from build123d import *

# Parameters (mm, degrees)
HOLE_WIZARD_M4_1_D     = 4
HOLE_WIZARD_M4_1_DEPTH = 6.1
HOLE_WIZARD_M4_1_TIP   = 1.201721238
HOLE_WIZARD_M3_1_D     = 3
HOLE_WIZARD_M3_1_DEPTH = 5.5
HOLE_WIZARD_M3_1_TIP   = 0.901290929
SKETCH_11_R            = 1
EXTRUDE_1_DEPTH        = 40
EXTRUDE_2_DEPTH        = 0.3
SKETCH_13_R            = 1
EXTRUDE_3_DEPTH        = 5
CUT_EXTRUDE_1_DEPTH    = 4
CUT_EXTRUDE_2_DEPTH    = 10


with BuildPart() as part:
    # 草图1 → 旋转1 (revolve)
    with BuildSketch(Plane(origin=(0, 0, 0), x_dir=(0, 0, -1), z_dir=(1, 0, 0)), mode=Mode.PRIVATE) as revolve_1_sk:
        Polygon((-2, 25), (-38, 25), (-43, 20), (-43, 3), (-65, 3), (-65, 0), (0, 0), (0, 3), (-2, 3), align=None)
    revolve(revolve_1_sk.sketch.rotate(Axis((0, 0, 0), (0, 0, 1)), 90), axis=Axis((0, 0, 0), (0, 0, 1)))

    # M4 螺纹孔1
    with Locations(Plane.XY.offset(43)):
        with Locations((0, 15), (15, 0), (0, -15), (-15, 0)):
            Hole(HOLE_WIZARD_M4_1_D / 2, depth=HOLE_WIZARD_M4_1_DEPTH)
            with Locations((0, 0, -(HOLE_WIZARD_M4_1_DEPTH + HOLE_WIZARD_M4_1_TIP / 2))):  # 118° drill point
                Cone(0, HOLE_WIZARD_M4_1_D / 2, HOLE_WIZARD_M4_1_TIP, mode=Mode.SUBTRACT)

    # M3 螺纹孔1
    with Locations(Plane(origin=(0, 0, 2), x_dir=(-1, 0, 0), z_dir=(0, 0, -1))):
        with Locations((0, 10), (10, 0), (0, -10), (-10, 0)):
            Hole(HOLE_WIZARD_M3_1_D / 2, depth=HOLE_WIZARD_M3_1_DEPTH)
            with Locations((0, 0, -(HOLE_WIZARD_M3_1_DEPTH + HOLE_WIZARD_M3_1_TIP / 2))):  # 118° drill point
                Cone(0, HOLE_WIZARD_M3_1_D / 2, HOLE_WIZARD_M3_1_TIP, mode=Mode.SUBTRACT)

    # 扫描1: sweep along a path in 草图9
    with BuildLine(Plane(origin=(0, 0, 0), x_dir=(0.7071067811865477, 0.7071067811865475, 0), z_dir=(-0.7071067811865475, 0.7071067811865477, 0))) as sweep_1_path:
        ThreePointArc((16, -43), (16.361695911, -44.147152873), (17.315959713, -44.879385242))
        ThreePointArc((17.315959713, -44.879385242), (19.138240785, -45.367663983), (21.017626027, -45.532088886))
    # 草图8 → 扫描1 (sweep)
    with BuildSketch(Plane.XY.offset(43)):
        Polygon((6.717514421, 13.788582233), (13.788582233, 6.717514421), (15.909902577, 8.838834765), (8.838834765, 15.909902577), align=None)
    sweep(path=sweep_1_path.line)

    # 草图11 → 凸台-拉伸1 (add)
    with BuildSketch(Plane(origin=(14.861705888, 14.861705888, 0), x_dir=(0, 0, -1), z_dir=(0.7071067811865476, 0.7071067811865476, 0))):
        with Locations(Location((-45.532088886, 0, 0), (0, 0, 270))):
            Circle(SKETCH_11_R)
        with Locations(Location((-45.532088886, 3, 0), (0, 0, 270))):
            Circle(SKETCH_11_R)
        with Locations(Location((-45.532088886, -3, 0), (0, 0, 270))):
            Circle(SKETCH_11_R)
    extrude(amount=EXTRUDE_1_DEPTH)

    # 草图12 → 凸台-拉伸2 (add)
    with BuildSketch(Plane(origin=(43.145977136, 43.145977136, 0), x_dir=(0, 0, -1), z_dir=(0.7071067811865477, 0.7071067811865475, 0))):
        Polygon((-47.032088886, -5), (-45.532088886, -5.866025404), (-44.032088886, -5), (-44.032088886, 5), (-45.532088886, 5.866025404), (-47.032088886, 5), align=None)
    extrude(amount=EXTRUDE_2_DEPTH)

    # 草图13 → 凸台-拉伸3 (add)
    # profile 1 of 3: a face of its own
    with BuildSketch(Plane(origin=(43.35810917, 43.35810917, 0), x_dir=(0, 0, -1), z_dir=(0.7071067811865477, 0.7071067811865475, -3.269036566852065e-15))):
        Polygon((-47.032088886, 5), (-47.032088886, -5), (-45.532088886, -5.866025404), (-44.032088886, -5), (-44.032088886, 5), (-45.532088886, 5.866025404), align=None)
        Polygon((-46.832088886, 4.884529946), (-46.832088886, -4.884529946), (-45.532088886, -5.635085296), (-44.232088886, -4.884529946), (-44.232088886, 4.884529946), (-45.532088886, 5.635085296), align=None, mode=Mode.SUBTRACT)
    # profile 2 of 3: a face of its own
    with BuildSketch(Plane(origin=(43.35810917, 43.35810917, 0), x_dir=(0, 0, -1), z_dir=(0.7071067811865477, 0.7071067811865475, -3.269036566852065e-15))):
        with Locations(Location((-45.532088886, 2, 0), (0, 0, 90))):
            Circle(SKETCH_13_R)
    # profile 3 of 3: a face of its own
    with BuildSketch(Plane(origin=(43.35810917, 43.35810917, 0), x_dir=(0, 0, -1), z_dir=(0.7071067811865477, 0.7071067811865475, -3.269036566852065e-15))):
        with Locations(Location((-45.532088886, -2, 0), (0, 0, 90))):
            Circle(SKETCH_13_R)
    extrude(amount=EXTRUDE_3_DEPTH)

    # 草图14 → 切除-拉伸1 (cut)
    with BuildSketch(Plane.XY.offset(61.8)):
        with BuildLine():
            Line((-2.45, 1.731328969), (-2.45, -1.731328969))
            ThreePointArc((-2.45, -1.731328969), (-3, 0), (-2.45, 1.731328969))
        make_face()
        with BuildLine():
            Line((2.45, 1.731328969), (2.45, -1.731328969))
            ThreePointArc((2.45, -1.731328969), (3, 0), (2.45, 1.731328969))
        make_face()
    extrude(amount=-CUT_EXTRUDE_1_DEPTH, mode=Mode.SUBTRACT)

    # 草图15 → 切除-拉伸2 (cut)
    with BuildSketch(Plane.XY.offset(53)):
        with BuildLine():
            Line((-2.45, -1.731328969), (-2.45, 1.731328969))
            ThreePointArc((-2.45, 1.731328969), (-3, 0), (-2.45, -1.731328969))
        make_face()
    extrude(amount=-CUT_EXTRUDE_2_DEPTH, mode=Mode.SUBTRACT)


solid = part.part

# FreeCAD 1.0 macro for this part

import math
import FreeCAD as App
import Part
import Sketcher

V = App.Vector
Q = App.Units.Quantity


def add_polygon(sketch, points):
    """Adds a closed chain of lines whose ends are joined by coincident constraints."""
    first, n = sketch.GeometryCount, len(points)
    for a, b in zip(points, points[1:] + points[:1]):
        sketch.addGeometry(Part.LineSegment(App.Vector(*a, 0), App.Vector(*b, 0)), False)
    for i in range(n):
        sketch.addConstraint(Sketcher.Constraint("Coincident", first + i, 2, first + (i + 1) % n, 1))

doc = App.newDocument("Part")
params = doc.addObject("Spreadsheet::Sheet", "Params")
for row, (alias, value) in enumerate([
    ("sketch1_width", "17 mm"),
    ("sketch1_width2", "3 mm"),
    ("sketch1_width3", "22 mm"),
    ("sketch1_height", "36 mm"),
    ("sketch1_height2", "65 mm"),
    ("revolution_angle", "360 deg"),
    ("sketch2_diameter", "4 mm"),
    ("hole_diameter", "4 mm"),
    ("hole_depth", "6.1 mm"),
    ("sketch3_diameter", "3 mm"),
    ("hole2_diameter", "3 mm"),
    ("hole2_depth", "5.5 mm"),
    ("sketch4_length", "10 mm"),
    ("sketch4_length2", "3 mm"),
    ("sketch5_radius", "2 mm"),
    ("sketch6_diameter", "2 mm"),
    ("pad1_length", "40 mm"),
    ("sketch7_height", "10 mm"),
    ("pad2_length", "0.3 mm"),
    ("sketch8_diameter", "2 mm"),
    ("sketch8_height", "10 mm"),
    ("pad3_length", "5 mm"),
    ("sketch9_radius", "3 mm"),
    ("pocket1_length", "4 mm"),
    ("sketch10_radius", "3 mm"),
    ("pocket2_length", "10 mm"),
], start=1):
    params.set(f"A{row}", alias)
    params.set(f"B{row}", "=" + value)
    params.setAlias(f"B{row}", alias)

body = doc.addObject("PartDesign::Body", "Body")

sketch1 = body.newObject("Sketcher::SketchObject", "Sketch")
sketch1.AttachmentSupport = (doc.getObject("YZ_Plane"), [""])
sketch1.MapMode = "FlatFace"
add_polygon(sketch1, [(25, 2), (25, 38), (20, 43), (3, 43), (3, 65), (0, 65), (0, 0), (3, 0), (3, 2)])
sketch1.addConstraint(Sketcher.Constraint("Vertical", 0))
sketch1.addConstraint(Sketcher.Constraint("Horizontal", 2))
sketch1.addConstraint(Sketcher.Constraint("Vertical", 3))
sketch1.addConstraint(Sketcher.Constraint("Horizontal", 4))
sketch1.addConstraint(Sketcher.Constraint("Vertical", 5))
sketch1.addConstraint(Sketcher.Constraint("Horizontal", 6))
sketch1.addConstraint(Sketcher.Constraint("Vertical", 7))
sketch1.addConstraint(Sketcher.Constraint("Horizontal", 8))
sketch1.addConstraint(Sketcher.Constraint("Coincident", 5, 2, -1, 1))
sketch1.addConstraint(Sketcher.Constraint("Vertical", 3, 2, 6, 2))
sketch1.addConstraint(Sketcher.Constraint("Equal", 8, 3))
sketch1.addConstraint(Sketcher.Constraint("DistanceX", 2, 2, 2, 1, 17.0))
sketch1.addConstraint(Sketcher.Constraint("DistanceX", 4, 2, 4, 1, 3.0))
sketch1.addConstraint(Sketcher.Constraint("DistanceX", 8, 1, 8, 2, 22.0))
sketch1.addConstraint(Sketcher.Constraint("DistanceY", 0, 1, 0, 2, 36.0))
sketch1.addConstraint(Sketcher.Constraint("DistanceY", 5, 2, 5, 1, 65.0))
sketch1.addConstraint(Sketcher.Constraint("DistanceY", 7, 1, 7, 2, 2.0))
sketch1.setExpression("Constraints[20]", "Params.sketch1_width")
sketch1.setExpression("Constraints[21]", "Params.sketch1_width2")
sketch1.setExpression("Constraints[22]", "Params.sketch1_width3")
sketch1.setExpression("Constraints[23]", "Params.sketch1_height")
sketch1.setExpression("Constraints[24]", "Params.sketch1_height2")
revolution = body.newObject("PartDesign::Revolution", "Revolution")
revolution.Profile = sketch1
revolution.ReferenceAxis = (sketch1, ["V_Axis"])
revolution.setExpression("Angle", "Params.revolution_angle")

sketch2 = body.newObject("Sketcher::SketchObject", "Sketch001")
sketch2.AttachmentSupport = (doc.getObject("XY_Plane"), [""])
sketch2.MapMode = "FlatFace"
sketch2.AttachmentOffset = App.Placement(V(0, 0, 43), App.Rotation())
sketch2.addGeometry(Part.Circle(V(0, 15, 0), V(0, 0, 1), 2), False)
sketch2.addGeometry(Part.Circle(V(15, 0, 0), V(0, 0, 1), 2), False)
sketch2.addGeometry(Part.Circle(V(0, -15, 0), V(0, 0, 1), 2), False)
sketch2.addGeometry(Part.Circle(V(-15, 0, 0), V(0, 0, 1), 2), False)
sketch2.addConstraint(Sketcher.Constraint("Equal", 0, 1))
sketch2.addConstraint(Sketcher.Constraint("Equal", 1, 2))
sketch2.addConstraint(Sketcher.Constraint("Equal", 2, 3))
sketch2.addConstraint(Sketcher.Constraint("Symmetric", 0, 3, 2, 3, -1, 1))
sketch2.addConstraint(Sketcher.Constraint("Symmetric", 1, 3, 3, 3, -1, 1))
sketch2.addConstraint(Sketcher.Constraint("PointOnObject", 0, 3, -2))
sketch2.addConstraint(Sketcher.Constraint("PointOnObject", 1, 3, -1))
sketch2.addConstraint(Sketcher.Constraint("Diameter", 0, 4.0))
sketch2.addConstraint(Sketcher.Constraint("DistanceY", -1, 1, 0, 3, 15.0))
sketch2.addConstraint(Sketcher.Constraint("DistanceX", -1, 1, 1, 3, 15.0))
sketch2.setExpression("Constraints[7]", "Params.sketch2_diameter")
doc.recompute()
hole = body.newObject("PartDesign::Hole", "Hole")
hole.Profile = sketch2
hole.ThreadType = "None"
hole.setExpression("Diameter", "Params.hole_diameter")
hole.DepthType = "Dimension"
hole.setExpression("Depth", "Params.hole_depth")
hole.DrillPoint = "Angled"
hole.DrillPointAngle = 118

sketch3 = body.newObject("Sketcher::SketchObject", "Sketch002")
sketch3.AttachmentSupport = (doc.getObject("XY_Plane"), [""])
sketch3.MapMode = "FlatFace"
sketch3.AttachmentOffset = App.Placement(V(0, 0, 2), App.Rotation())
sketch3.addGeometry(Part.Circle(V(0, 10, 0), V(0, 0, 1), 1.5), False)
sketch3.addGeometry(Part.Circle(V(-10, 0, 0), V(0, 0, 1), 1.5), False)
sketch3.addGeometry(Part.Circle(V(0, -10, 0), V(0, 0, 1), 1.5), False)
sketch3.addGeometry(Part.Circle(V(10, 0, 0), V(0, 0, 1), 1.5), False)
sketch3.addConstraint(Sketcher.Constraint("Equal", 0, 1))
sketch3.addConstraint(Sketcher.Constraint("Equal", 1, 2))
sketch3.addConstraint(Sketcher.Constraint("Equal", 2, 3))
sketch3.addConstraint(Sketcher.Constraint("Symmetric", 0, 3, 2, 3, -1, 1))
sketch3.addConstraint(Sketcher.Constraint("Symmetric", 1, 3, 3, 3, -1, 1))
sketch3.addConstraint(Sketcher.Constraint("PointOnObject", 0, 3, -2))
sketch3.addConstraint(Sketcher.Constraint("PointOnObject", 1, 3, -1))
sketch3.addConstraint(Sketcher.Constraint("Diameter", 0, 3.0))
sketch3.addConstraint(Sketcher.Constraint("DistanceY", -1, 1, 0, 3, 10.0))
sketch3.addConstraint(Sketcher.Constraint("DistanceX", 1, 3, -1, 1, 10.0))
sketch3.setExpression("Constraints[7]", "Params.sketch3_diameter")
doc.recompute()
hole2 = body.newObject("PartDesign::Hole", "Hole001")
hole2.Profile = sketch3
hole2.ThreadType = "None"
hole2.setExpression("Diameter", "Params.hole2_diameter")
hole2.DepthType = "Dimension"
hole2.setExpression("Depth", "Params.hole2_depth")
hole2.DrillPoint = "Angled"
hole2.DrillPointAngle = 118
hole2.Reversed = True

sketch4 = body.newObject("Sketcher::SketchObject", "Sketch003")
sketch4.AttachmentSupport = (doc.getObject("XY_Plane"), [""])
sketch4.MapMode = "FlatFace"
sketch4.AttachmentOffset = App.Placement(V(0, 0, 43), App.Rotation())
add_polygon(sketch4, [(6.7, 13.8), (13.8, 6.7), (15.9, 8.8), (8.8, 15.9)])
sketch4.addConstraint(Sketcher.Constraint("Perpendicular", 0, 1))
sketch4.addConstraint(Sketcher.Constraint("Perpendicular", 1, 2))
sketch4.addConstraint(Sketcher.Constraint("Perpendicular", 2, 3))
sketch4.addConstraint(Sketcher.Constraint("Angle", 0, Q("-45 deg")))
sketch4.addConstraint(Sketcher.Constraint("Distance", 0, 10.0))
sketch4.addConstraint(Sketcher.Constraint("Distance", 1, 3.0))
sketch4.addConstraint(Sketcher.Constraint("DistanceX", -1, 1, 0, 2, 13.788582))
sketch4.addConstraint(Sketcher.Constraint("DistanceY", -1, 1, 0, 2, 6.717514))
sketch4.setExpression("Constraints[8]", "Params.sketch4_length")
sketch4.setExpression("Constraints[9]", "Params.sketch4_length2")

sketch5 = body.newObject("Sketcher::SketchObject", "Sketch004")
sketch5.Placement = App.Placement(V(0, 0, 0), App.Rotation(V(-0.707106781, -0.707106781, 0), V(0, 0, 0.999999999), V(-0.707106781, 0.707106781, 0), "ZXY"))
sketch5.addGeometry(Part.ArcOfCircle(Part.Circle(V(-18, 43, 0), V(0, 0, 1), 2), math.radians(0), math.radians(70)), False)
sketch5.addGeometry(Part.ArcOfCircle(Part.Circle(V(-21, 34.7, 0), V(0, 0, 1), 10.8), math.radians(70), math.radians(90)), False)
sketch5.addConstraint(Sketcher.Constraint("Tangent", 0, 2, 1, 1))
sketch5.addConstraint(Sketcher.Constraint("Radius", 0, 2.0))
sketch5.addConstraint(Sketcher.Constraint("DistanceX", 0, 3, -1, 1, 18.0))
sketch5.addConstraint(Sketcher.Constraint("DistanceY", -1, 1, 0, 3, 43.0))
sketch5.addConstraint(Sketcher.Constraint("DistanceY", -1, 1, 0, 1, 43.0))
sketch5.addConstraint(Sketcher.Constraint("Radius", 1, 10.822948))
sketch5.addConstraint(Sketcher.Constraint("DistanceY", -1, 1, 1, 3, 34.709141))
sketch5.addConstraint(Sketcher.Constraint("DistanceX", 1, 2, -1, 1, 21.017626))
sketch5.setExpression("Constraints[1]", "Params.sketch5_radius")
doc.recompute()

additivepipe = body.newObject("PartDesign::AdditivePipe", "AdditivePipe")
additivepipe.Profile = sketch4
additivepipe.Spine = (sketch5, ["Edge1", "Edge2"])

sketch6 = body.newObject("Sketcher::SketchObject", "Sketch005")
sketch6.Placement = App.Placement(V(14.861706, 14.861706, 0), App.Rotation(V(0, 0, -1), V(-0.707106781, 0.707106781, 0), V(0.707106781, 0.707106781, 0), "ZXY"))
sketch6.addGeometry(Part.Circle(V(-45.5, 0, 0), V(0, 0, 1), 1), False)
sketch6.addGeometry(Part.Circle(V(-45.5, 3, 0), V(0, 0, 1), 1), False)
sketch6.addGeometry(Part.Circle(V(-45.5, -3, 0), V(0, 0, 1), 1), False)
sketch6.addConstraint(Sketcher.Constraint("Equal", 0, 1))
sketch6.addConstraint(Sketcher.Constraint("Equal", 1, 2))
sketch6.addConstraint(Sketcher.Constraint("Symmetric", 1, 3, 2, 3, -1))
sketch6.addConstraint(Sketcher.Constraint("PointOnObject", 0, 3, -1))
sketch6.addConstraint(Sketcher.Constraint("Vertical", 0, 3, 1, 3))
sketch6.addConstraint(Sketcher.Constraint("Diameter", 0, 2.0))
sketch6.addConstraint(Sketcher.Constraint("DistanceY", -1, 1, 1, 3, 3.0))
sketch6.addConstraint(Sketcher.Constraint("DistanceX", 0, 3, -1, 1, 45.532089))
sketch6.setExpression("Constraints[5]", "Params.sketch6_diameter")
pad1 = body.newObject("PartDesign::Pad", "Pad")
pad1.Profile = sketch6
pad1.setExpression("Length", "Params.pad1_length")

sketch7 = body.newObject("Sketcher::SketchObject", "Sketch006")
sketch7.Placement = App.Placement(V(43.145977, 43.145977, 0), App.Rotation(V(0, 0, -1), V(-0.707106781, 0.707106781, 0), V(0.707106781, 0.707106781, 0), "ZXY"))
add_polygon(sketch7, [(-47, -5), (-45.5, -5.9), (-44, -5), (-44, 5), (-45.5, 5.9), (-47, 5)])
sketch7.addConstraint(Sketcher.Constraint("Vertical", 2))
sketch7.addConstraint(Sketcher.Constraint("Vertical", 5))
sketch7.addConstraint(Sketcher.Constraint("Symmetric", 0, 2, 3, 2, -1))
sketch7.addConstraint(Sketcher.Constraint("Parallel", 0, 3))
sketch7.addConstraint(Sketcher.Constraint("Parallel", 1, 4))
sketch7.addConstraint(Sketcher.Constraint("Horizontal", 2, 2, 4, 2))
sketch7.addConstraint(Sketcher.Constraint("Horizontal", 1, 2, 5, 2))
sketch7.addConstraint(Sketcher.Constraint("DistanceY", 2, 1, 2, 2, 10.0))
sketch7.addConstraint(Sketcher.Constraint("Angle", 0, Q("-30 deg")))
sketch7.addConstraint(Sketcher.Constraint("DistanceX", 4, 2, 2, 2, 3.0))
sketch7.addConstraint(Sketcher.Constraint("DistanceX", 0, 2, -1, 1, 45.532089))
sketch7.setExpression("Constraints[13]", "Params.sketch7_height")
pad2 = body.newObject("PartDesign::Pad", "Pad001")
pad2.Profile = sketch7
pad2.setExpression("Length", "Params.pad2_length")

sketch8 = body.newObject("Sketcher::SketchObject", "Sketch007")
sketch8.Placement = App.Placement(V(43.358109, 43.358109, 0), App.Rotation(V(0, 0, -1), V(-0.707106781, 0.707106781, 0), V(0.707106781, 0.707106781, 0), "ZXY"))
add_polygon(sketch8, [(-47, 5), (-47, -5), (-45.5, -5.9), (-44, -5), (-44, 5), (-45.5, 5.9)])
add_polygon(sketch8, [(-46.8, -4.9), (-46.8, 4.9), (-45.5, 5.6), (-44.2, 4.9), (-44.2, -4.9), (-45.5, -5.6)])
sketch8.addGeometry(Part.Circle(V(-45.5, 2, 0), V(0, 0, 1), 1), False)
sketch8.addGeometry(Part.Circle(V(-45.5, -2, 0), V(0, 0, 1), 1), False)
sketch8.addConstraint(Sketcher.Constraint("Vertical", 0))
sketch8.addConstraint(Sketcher.Constraint("Vertical", 3))
sketch8.addConstraint(Sketcher.Constraint("Vertical", 6))
sketch8.addConstraint(Sketcher.Constraint("Vertical", 9))
sketch8.addConstraint(Sketcher.Constraint("Equal", 12, 13))
sketch8.addConstraint(Sketcher.Constraint("Symmetric", 12, 3, 13, 3, -1))
sketch8.addConstraint(Sketcher.Constraint("Symmetric", 1, 2, 4, 2, -1))
sketch8.addConstraint(Sketcher.Constraint("Symmetric", 7, 2, 10, 2, -1))
sketch8.addConstraint(Sketcher.Constraint("Parallel", 1, 4))
sketch8.addConstraint(Sketcher.Constraint("Parallel", 2, 5))
sketch8.addConstraint(Sketcher.Constraint("Parallel", 5, 7))
sketch8.addConstraint(Sketcher.Constraint("Parallel", 4, 8))
sketch8.addConstraint(Sketcher.Constraint("Parallel", 7, 10))
sketch8.addConstraint(Sketcher.Constraint("Parallel", 8, 11))
sketch8.addConstraint(Sketcher.Constraint("Horizontal", 0, 2, 2, 2))
sketch8.addConstraint(Sketcher.Constraint("Horizontal", 3, 2, 5, 2))
sketch8.addConstraint(Sketcher.Constraint("Horizontal", 6, 2, 8, 2))
sketch8.addConstraint(Sketcher.Constraint("Vertical", 13, 3, 1, 2))
sketch8.addConstraint(Sketcher.Constraint("Vertical", 4, 2, 7, 2))
sketch8.addConstraint(Sketcher.Constraint("Diameter", 12, 2.0))
sketch8.addConstraint(Sketcher.Constraint("DistanceY", 0, 2, 0, 1, 10.0))
sketch8.addConstraint(Sketcher.Constraint("Angle", 1, Q("-30 deg")))
sketch8.addConstraint(Sketcher.Constraint("DistanceY", -1, 1, 12, 3, 2.0))
sketch8.addConstraint(Sketcher.Constraint("DistanceX", 0, 2, 2, 2, 3.0))
sketch8.addConstraint(Sketcher.Constraint("DistanceX", 5, 2, 6, 2, 0.2))
sketch8.addConstraint(Sketcher.Constraint("DistanceY", 6, 1, 6, 2, 9.76906))
sketch8.addConstraint(Sketcher.Constraint("DistanceX", 12, 3, -1, 1, 45.532089))
sketch8.setExpression("Constraints[31]", "Params.sketch8_diameter")
sketch8.setExpression("Constraints[32]", "Params.sketch8_height")
pad3 = body.newObject("PartDesign::Pad", "Pad002")
pad3.Profile = sketch8
pad3.setExpression("Length", "Params.pad3_length")

sketch9 = body.newObject("Sketcher::SketchObject", "Sketch008")
sketch9.AttachmentSupport = (doc.getObject("XY_Plane"), [""])
sketch9.MapMode = "FlatFace"
sketch9.AttachmentOffset = App.Placement(V(0, 0, 61.8), App.Rotation())
sketch9.addGeometry(Part.LineSegment(V(-2.5, -1.7, 0), V(-2.5, 1.7, 0)), False)
sketch9.addGeometry(Part.ArcOfCircle(Part.Circle(V(0, 0, 0), V(0, 0, 1), 3), math.radians(145), math.radians(215)), False)
sketch9.addGeometry(Part.LineSegment(V(2.5, 1.7, 0), V(2.5, -1.7, 0)), False)
sketch9.addGeometry(Part.ArcOfCircle(Part.Circle(V(0, 0, 0), V(0, 0, 1), 3), math.radians(-35), math.radians(35)), False)
sketch9.addConstraint(Sketcher.Constraint("Coincident", 0, 1, 1, 2))
sketch9.addConstraint(Sketcher.Constraint("Coincident", 1, 1, 0, 2))
sketch9.addConstraint(Sketcher.Constraint("Coincident", 2, 1, 3, 2))
sketch9.addConstraint(Sketcher.Constraint("Coincident", 3, 1, 2, 2))
sketch9.addConstraint(Sketcher.Constraint("Vertical", 0))
sketch9.addConstraint(Sketcher.Constraint("Vertical", 2))
sketch9.addConstraint(Sketcher.Constraint("Coincident", 1, 3, -1, 1))
sketch9.addConstraint(Sketcher.Constraint("Coincident", 3, 3, -1, 1))
sketch9.addConstraint(Sketcher.Constraint("Equal", 1, 3))
sketch9.addConstraint(Sketcher.Constraint("Horizontal", 1, 1, 2, 1))
sketch9.addConstraint(Sketcher.Constraint("Radius", 1, 3.0))
sketch9.addConstraint(Sketcher.Constraint("DistanceX", 1, 1, 2, 1, 4.9))
sketch9.setExpression("Constraints[10]", "Params.sketch9_radius")
pocket1 = body.newObject("PartDesign::Pocket", "Pocket")
pocket1.Profile = sketch9
pocket1.setExpression("Length", "Params.pocket1_length")

sketch10 = body.newObject("Sketcher::SketchObject", "Sketch009")
sketch10.AttachmentSupport = (doc.getObject("XY_Plane"), [""])
sketch10.MapMode = "FlatFace"
sketch10.AttachmentOffset = App.Placement(V(0, 0, 53), App.Rotation())
sketch10.addGeometry(Part.LineSegment(V(-2.5, -1.7, 0), V(-2.5, 1.7, 0)), False)
sketch10.addGeometry(Part.ArcOfCircle(Part.Circle(V(0, 0, 0), V(0, 0, 1), 3), math.radians(145), math.radians(215)), False)
sketch10.addConstraint(Sketcher.Constraint("Coincident", 0, 1, 1, 2))
sketch10.addConstraint(Sketcher.Constraint("Coincident", 1, 1, 0, 2))
sketch10.addConstraint(Sketcher.Constraint("Vertical", 0))
sketch10.addConstraint(Sketcher.Constraint("Coincident", 1, 3, -1, 1))
sketch10.addConstraint(Sketcher.Constraint("Radius", 1, 3.0))
sketch10.addConstraint(Sketcher.Constraint("DistanceX", 0, 1, -1, 1, 2.45))
sketch10.setExpression("Constraints[4]", "Params.sketch10_radius")
pocket2 = body.newObject("PartDesign::Pocket", "Pocket001")
pocket2.Profile = sketch10
pocket2.setExpression("Length", "Params.pocket2_length")

doc.recompute()
